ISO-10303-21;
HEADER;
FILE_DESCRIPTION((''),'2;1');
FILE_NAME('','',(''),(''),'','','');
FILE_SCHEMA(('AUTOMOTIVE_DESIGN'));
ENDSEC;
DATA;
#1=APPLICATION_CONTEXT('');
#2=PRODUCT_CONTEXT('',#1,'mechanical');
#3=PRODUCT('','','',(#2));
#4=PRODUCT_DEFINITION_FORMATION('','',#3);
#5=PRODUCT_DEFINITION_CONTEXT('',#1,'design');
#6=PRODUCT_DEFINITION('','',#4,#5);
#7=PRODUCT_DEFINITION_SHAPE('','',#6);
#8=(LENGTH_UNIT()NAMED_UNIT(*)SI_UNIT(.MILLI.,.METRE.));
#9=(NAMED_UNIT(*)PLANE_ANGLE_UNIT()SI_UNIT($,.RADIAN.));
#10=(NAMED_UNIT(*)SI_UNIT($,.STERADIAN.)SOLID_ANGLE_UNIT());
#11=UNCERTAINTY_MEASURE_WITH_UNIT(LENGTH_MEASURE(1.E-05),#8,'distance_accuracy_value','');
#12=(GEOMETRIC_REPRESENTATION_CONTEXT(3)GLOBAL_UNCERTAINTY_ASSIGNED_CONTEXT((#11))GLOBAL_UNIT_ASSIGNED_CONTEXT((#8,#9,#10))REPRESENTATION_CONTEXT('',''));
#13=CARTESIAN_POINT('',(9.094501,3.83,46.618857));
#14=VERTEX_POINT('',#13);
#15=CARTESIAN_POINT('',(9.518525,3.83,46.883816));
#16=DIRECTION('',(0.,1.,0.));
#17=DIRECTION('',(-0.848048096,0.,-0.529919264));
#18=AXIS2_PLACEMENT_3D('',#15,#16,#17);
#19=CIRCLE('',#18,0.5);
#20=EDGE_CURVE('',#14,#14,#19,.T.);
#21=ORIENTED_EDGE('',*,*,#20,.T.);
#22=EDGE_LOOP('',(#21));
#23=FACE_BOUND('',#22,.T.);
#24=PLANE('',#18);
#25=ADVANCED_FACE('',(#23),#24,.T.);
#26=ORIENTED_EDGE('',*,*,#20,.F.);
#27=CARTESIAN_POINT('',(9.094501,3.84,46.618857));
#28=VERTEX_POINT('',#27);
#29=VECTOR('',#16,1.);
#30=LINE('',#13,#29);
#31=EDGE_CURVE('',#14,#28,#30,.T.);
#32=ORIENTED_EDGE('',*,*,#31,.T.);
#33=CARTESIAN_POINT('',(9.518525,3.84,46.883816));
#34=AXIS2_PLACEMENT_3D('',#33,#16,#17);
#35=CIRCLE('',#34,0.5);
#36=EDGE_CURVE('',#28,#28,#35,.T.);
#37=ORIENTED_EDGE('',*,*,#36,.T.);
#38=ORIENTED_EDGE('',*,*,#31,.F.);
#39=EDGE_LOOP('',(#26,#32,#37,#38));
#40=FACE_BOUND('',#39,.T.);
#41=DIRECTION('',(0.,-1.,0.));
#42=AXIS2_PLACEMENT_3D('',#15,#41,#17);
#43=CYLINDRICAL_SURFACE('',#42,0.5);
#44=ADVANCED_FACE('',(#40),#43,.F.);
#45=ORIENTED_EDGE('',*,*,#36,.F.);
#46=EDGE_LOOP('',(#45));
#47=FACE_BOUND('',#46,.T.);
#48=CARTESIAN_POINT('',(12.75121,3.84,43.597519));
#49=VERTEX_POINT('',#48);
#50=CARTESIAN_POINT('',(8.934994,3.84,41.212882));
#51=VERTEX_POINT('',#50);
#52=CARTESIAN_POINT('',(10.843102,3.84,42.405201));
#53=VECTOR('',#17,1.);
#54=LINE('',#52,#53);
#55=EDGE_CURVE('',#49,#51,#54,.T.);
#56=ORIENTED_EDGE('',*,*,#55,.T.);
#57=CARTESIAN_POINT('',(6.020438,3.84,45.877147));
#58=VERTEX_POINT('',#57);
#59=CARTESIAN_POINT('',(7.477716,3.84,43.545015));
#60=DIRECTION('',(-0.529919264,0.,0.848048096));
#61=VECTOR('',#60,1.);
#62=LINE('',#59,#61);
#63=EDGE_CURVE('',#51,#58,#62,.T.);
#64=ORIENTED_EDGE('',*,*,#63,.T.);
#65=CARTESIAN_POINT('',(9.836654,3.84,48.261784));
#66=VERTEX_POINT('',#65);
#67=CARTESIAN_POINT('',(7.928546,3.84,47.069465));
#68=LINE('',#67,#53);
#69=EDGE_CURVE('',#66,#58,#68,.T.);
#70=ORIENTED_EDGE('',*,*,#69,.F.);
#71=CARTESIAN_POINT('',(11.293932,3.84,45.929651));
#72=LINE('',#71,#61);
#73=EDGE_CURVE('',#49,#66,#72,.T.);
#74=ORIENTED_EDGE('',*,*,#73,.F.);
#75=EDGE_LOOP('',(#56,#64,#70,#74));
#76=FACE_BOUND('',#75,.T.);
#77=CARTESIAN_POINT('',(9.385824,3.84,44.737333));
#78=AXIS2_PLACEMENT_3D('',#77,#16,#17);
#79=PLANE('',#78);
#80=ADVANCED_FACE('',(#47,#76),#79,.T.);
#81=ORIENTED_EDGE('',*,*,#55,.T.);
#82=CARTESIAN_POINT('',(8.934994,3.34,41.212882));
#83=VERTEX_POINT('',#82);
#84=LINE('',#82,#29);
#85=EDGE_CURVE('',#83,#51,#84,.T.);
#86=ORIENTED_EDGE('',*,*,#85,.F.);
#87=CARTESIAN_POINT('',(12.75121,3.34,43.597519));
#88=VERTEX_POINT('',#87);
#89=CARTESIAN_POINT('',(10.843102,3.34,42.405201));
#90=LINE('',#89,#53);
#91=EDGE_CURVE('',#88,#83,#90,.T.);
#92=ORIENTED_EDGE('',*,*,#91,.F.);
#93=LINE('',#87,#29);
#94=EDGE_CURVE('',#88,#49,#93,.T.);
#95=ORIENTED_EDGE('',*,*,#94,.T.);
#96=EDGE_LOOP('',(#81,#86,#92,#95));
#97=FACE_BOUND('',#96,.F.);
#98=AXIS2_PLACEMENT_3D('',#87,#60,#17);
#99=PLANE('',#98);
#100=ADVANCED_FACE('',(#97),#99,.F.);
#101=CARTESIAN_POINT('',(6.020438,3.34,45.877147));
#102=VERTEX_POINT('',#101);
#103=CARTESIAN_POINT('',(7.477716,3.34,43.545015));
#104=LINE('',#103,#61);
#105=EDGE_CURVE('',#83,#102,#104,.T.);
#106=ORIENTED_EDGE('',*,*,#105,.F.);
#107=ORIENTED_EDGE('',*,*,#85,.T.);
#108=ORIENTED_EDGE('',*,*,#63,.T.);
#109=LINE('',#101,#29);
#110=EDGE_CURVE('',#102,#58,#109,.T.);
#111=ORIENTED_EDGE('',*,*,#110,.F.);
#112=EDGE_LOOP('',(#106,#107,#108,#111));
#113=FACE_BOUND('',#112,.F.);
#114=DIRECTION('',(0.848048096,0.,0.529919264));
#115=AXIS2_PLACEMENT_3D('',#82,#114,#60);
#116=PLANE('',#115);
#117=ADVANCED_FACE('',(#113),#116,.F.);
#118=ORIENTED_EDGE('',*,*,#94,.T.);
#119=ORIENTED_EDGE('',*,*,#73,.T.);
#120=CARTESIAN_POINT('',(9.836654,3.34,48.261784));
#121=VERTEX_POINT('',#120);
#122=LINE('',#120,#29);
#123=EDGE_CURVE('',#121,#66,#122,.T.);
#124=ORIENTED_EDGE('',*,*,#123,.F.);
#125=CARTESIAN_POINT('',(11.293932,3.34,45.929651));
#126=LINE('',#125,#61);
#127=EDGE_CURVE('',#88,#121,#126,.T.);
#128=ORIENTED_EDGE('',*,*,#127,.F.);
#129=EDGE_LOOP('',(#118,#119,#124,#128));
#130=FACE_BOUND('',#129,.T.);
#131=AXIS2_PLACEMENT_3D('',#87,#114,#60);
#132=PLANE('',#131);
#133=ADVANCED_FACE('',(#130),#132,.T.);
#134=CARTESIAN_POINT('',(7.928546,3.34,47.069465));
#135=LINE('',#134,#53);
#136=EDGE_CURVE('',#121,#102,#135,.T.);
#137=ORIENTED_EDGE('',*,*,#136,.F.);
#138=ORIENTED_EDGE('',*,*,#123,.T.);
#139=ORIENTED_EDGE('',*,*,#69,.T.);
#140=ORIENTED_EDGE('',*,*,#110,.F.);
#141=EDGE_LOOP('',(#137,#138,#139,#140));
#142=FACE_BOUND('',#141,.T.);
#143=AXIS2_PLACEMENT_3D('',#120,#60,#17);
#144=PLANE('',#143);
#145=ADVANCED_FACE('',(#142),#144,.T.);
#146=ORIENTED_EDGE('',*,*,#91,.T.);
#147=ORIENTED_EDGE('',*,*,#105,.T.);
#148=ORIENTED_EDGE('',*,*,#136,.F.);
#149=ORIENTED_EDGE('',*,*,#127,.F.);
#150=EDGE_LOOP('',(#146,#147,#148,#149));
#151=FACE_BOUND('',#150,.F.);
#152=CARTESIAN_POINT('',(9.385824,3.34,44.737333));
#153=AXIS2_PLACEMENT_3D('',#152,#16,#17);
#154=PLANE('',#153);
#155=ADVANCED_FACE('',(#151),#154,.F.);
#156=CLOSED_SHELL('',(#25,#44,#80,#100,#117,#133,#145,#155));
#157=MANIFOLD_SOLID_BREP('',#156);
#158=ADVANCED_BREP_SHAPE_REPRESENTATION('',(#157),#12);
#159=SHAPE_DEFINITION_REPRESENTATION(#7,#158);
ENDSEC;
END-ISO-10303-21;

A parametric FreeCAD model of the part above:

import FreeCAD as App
import Part
import Sketcher

V = App.Vector


def add_polygon(sketch, points):
    """Adds a closed chain of lines whose ends are joined by coincident constraints."""
    first, n = sketch.GeometryCount, len(points)
    for a, b in zip(points, points[1:] + points[:1]):
        sketch.addGeometry(Part.LineSegment(App.Vector(*a, 0), App.Vector(*b, 0)), False)
    for i in range(n):
        sketch.addConstraint(Sketcher.Constraint("Coincident", first + i, 2, first + (i + 1) % n, 1))

doc = App.newDocument("Part")
body = doc.addObject("PartDesign::Body", "Body")

# Sketch on XY plane
sketch1 = body.newObject("Sketcher::SketchObject", "Sketch")
sketch1.AttachmentSupport = (doc.getObject("XY_Plane"), [""])
sketch1.MapMode = "FlatFace"
sketch1.AttachmentOffset = App.Placement(V(0, 0, 0.49), App.Rotation())
sketch1.addGeometry(Part.Circle(V(1, 4.5, 0), V(0, 0, 1), 0.5), False)
sketch1.addConstraint([
    Sketcher.Constraint("Diameter", 0, 1.0),
    Sketcher.Constraint("DistanceX", -1, 1, 0, 3, 1.0),
    Sketcher.Constraint("DistanceY", -1, 1, 0, 3, 4.5),
])
pad1 = body.newObject("PartDesign::Pad", "Pad")
pad1.Profile = sketch1
pad1.Length = 0.01
body2 = doc.addObject("PartDesign::Body", "Body001")

# Sketch on XY plane
sketch2 = body2.newObject("Sketcher::SketchObject", "Sketch001")
sketch2.AttachmentSupport = (doc.getObject("XY_Plane001"), [""])
sketch2.MapMode = "FlatFace"
add_polygon(sketch2, [(0, 5.5), (0, 0), (4.5, 0), (4.5, 5.5)])  # lines 0-3
sketch2.addConstraint([
    Sketcher.Constraint("Vertical", 0),
    Sketcher.Constraint("Horizontal", 1),
    Sketcher.Constraint("Vertical", 2),
    Sketcher.Constraint("Horizontal", 3),
    Sketcher.Constraint("Coincident", 0, 2, -1, 1),
    Sketcher.Constraint("DistanceX", 1, 1, 1, 2, 4.5),
    Sketcher.Constraint("DistanceY", 0, 2, 0, 1, 5.5),
])
pad2 = body2.newObject("PartDesign::Pad", "Pad001")
pad2.Profile = sketch2
pad2.Length = 0.5
doc.recompute()

boolean = body2.newObject("PartDesign::Boolean", "Boolean")
boolean.Type = "Cut"
boolean.addObjects([body])
body3 = doc.addObject("PartDesign::Body", "Body002")
doc.recompute()

body2.Placement = App.Placement(V(0, 0, 0), App.Rotation(V(1, 0, 0), 90))
boolean2 = body3.newObject("PartDesign::Boolean", "Boolean001")
boolean2.Type = "Fuse"
boolean2.addObjects([body2])
body4 = doc.addObject("PartDesign::Body", "Body003")
doc.recompute()

body3.Placement = App.Placement(V(0, 0, 0), App.Rotation(V(0, 1, 0), 32))
boolean3 = body4.newObject("PartDesign::Boolean", "Boolean002")
boolean3.Type = "Fuse"
boolean3.addObjects([body3])
body5 = doc.addObject("PartDesign::Body", "Body004")
doc.recompute()

body4.Placement = App.Placement(V(12.75121, 3.34, 43.597519), App.Rotation(V(0, 0, 1), 180))
boolean4 = body5.newObject("PartDesign::Boolean", "Boolean003")
boolean4.Type = "Fuse"
boolean4.addObjects([body4])

doc.recompute()
